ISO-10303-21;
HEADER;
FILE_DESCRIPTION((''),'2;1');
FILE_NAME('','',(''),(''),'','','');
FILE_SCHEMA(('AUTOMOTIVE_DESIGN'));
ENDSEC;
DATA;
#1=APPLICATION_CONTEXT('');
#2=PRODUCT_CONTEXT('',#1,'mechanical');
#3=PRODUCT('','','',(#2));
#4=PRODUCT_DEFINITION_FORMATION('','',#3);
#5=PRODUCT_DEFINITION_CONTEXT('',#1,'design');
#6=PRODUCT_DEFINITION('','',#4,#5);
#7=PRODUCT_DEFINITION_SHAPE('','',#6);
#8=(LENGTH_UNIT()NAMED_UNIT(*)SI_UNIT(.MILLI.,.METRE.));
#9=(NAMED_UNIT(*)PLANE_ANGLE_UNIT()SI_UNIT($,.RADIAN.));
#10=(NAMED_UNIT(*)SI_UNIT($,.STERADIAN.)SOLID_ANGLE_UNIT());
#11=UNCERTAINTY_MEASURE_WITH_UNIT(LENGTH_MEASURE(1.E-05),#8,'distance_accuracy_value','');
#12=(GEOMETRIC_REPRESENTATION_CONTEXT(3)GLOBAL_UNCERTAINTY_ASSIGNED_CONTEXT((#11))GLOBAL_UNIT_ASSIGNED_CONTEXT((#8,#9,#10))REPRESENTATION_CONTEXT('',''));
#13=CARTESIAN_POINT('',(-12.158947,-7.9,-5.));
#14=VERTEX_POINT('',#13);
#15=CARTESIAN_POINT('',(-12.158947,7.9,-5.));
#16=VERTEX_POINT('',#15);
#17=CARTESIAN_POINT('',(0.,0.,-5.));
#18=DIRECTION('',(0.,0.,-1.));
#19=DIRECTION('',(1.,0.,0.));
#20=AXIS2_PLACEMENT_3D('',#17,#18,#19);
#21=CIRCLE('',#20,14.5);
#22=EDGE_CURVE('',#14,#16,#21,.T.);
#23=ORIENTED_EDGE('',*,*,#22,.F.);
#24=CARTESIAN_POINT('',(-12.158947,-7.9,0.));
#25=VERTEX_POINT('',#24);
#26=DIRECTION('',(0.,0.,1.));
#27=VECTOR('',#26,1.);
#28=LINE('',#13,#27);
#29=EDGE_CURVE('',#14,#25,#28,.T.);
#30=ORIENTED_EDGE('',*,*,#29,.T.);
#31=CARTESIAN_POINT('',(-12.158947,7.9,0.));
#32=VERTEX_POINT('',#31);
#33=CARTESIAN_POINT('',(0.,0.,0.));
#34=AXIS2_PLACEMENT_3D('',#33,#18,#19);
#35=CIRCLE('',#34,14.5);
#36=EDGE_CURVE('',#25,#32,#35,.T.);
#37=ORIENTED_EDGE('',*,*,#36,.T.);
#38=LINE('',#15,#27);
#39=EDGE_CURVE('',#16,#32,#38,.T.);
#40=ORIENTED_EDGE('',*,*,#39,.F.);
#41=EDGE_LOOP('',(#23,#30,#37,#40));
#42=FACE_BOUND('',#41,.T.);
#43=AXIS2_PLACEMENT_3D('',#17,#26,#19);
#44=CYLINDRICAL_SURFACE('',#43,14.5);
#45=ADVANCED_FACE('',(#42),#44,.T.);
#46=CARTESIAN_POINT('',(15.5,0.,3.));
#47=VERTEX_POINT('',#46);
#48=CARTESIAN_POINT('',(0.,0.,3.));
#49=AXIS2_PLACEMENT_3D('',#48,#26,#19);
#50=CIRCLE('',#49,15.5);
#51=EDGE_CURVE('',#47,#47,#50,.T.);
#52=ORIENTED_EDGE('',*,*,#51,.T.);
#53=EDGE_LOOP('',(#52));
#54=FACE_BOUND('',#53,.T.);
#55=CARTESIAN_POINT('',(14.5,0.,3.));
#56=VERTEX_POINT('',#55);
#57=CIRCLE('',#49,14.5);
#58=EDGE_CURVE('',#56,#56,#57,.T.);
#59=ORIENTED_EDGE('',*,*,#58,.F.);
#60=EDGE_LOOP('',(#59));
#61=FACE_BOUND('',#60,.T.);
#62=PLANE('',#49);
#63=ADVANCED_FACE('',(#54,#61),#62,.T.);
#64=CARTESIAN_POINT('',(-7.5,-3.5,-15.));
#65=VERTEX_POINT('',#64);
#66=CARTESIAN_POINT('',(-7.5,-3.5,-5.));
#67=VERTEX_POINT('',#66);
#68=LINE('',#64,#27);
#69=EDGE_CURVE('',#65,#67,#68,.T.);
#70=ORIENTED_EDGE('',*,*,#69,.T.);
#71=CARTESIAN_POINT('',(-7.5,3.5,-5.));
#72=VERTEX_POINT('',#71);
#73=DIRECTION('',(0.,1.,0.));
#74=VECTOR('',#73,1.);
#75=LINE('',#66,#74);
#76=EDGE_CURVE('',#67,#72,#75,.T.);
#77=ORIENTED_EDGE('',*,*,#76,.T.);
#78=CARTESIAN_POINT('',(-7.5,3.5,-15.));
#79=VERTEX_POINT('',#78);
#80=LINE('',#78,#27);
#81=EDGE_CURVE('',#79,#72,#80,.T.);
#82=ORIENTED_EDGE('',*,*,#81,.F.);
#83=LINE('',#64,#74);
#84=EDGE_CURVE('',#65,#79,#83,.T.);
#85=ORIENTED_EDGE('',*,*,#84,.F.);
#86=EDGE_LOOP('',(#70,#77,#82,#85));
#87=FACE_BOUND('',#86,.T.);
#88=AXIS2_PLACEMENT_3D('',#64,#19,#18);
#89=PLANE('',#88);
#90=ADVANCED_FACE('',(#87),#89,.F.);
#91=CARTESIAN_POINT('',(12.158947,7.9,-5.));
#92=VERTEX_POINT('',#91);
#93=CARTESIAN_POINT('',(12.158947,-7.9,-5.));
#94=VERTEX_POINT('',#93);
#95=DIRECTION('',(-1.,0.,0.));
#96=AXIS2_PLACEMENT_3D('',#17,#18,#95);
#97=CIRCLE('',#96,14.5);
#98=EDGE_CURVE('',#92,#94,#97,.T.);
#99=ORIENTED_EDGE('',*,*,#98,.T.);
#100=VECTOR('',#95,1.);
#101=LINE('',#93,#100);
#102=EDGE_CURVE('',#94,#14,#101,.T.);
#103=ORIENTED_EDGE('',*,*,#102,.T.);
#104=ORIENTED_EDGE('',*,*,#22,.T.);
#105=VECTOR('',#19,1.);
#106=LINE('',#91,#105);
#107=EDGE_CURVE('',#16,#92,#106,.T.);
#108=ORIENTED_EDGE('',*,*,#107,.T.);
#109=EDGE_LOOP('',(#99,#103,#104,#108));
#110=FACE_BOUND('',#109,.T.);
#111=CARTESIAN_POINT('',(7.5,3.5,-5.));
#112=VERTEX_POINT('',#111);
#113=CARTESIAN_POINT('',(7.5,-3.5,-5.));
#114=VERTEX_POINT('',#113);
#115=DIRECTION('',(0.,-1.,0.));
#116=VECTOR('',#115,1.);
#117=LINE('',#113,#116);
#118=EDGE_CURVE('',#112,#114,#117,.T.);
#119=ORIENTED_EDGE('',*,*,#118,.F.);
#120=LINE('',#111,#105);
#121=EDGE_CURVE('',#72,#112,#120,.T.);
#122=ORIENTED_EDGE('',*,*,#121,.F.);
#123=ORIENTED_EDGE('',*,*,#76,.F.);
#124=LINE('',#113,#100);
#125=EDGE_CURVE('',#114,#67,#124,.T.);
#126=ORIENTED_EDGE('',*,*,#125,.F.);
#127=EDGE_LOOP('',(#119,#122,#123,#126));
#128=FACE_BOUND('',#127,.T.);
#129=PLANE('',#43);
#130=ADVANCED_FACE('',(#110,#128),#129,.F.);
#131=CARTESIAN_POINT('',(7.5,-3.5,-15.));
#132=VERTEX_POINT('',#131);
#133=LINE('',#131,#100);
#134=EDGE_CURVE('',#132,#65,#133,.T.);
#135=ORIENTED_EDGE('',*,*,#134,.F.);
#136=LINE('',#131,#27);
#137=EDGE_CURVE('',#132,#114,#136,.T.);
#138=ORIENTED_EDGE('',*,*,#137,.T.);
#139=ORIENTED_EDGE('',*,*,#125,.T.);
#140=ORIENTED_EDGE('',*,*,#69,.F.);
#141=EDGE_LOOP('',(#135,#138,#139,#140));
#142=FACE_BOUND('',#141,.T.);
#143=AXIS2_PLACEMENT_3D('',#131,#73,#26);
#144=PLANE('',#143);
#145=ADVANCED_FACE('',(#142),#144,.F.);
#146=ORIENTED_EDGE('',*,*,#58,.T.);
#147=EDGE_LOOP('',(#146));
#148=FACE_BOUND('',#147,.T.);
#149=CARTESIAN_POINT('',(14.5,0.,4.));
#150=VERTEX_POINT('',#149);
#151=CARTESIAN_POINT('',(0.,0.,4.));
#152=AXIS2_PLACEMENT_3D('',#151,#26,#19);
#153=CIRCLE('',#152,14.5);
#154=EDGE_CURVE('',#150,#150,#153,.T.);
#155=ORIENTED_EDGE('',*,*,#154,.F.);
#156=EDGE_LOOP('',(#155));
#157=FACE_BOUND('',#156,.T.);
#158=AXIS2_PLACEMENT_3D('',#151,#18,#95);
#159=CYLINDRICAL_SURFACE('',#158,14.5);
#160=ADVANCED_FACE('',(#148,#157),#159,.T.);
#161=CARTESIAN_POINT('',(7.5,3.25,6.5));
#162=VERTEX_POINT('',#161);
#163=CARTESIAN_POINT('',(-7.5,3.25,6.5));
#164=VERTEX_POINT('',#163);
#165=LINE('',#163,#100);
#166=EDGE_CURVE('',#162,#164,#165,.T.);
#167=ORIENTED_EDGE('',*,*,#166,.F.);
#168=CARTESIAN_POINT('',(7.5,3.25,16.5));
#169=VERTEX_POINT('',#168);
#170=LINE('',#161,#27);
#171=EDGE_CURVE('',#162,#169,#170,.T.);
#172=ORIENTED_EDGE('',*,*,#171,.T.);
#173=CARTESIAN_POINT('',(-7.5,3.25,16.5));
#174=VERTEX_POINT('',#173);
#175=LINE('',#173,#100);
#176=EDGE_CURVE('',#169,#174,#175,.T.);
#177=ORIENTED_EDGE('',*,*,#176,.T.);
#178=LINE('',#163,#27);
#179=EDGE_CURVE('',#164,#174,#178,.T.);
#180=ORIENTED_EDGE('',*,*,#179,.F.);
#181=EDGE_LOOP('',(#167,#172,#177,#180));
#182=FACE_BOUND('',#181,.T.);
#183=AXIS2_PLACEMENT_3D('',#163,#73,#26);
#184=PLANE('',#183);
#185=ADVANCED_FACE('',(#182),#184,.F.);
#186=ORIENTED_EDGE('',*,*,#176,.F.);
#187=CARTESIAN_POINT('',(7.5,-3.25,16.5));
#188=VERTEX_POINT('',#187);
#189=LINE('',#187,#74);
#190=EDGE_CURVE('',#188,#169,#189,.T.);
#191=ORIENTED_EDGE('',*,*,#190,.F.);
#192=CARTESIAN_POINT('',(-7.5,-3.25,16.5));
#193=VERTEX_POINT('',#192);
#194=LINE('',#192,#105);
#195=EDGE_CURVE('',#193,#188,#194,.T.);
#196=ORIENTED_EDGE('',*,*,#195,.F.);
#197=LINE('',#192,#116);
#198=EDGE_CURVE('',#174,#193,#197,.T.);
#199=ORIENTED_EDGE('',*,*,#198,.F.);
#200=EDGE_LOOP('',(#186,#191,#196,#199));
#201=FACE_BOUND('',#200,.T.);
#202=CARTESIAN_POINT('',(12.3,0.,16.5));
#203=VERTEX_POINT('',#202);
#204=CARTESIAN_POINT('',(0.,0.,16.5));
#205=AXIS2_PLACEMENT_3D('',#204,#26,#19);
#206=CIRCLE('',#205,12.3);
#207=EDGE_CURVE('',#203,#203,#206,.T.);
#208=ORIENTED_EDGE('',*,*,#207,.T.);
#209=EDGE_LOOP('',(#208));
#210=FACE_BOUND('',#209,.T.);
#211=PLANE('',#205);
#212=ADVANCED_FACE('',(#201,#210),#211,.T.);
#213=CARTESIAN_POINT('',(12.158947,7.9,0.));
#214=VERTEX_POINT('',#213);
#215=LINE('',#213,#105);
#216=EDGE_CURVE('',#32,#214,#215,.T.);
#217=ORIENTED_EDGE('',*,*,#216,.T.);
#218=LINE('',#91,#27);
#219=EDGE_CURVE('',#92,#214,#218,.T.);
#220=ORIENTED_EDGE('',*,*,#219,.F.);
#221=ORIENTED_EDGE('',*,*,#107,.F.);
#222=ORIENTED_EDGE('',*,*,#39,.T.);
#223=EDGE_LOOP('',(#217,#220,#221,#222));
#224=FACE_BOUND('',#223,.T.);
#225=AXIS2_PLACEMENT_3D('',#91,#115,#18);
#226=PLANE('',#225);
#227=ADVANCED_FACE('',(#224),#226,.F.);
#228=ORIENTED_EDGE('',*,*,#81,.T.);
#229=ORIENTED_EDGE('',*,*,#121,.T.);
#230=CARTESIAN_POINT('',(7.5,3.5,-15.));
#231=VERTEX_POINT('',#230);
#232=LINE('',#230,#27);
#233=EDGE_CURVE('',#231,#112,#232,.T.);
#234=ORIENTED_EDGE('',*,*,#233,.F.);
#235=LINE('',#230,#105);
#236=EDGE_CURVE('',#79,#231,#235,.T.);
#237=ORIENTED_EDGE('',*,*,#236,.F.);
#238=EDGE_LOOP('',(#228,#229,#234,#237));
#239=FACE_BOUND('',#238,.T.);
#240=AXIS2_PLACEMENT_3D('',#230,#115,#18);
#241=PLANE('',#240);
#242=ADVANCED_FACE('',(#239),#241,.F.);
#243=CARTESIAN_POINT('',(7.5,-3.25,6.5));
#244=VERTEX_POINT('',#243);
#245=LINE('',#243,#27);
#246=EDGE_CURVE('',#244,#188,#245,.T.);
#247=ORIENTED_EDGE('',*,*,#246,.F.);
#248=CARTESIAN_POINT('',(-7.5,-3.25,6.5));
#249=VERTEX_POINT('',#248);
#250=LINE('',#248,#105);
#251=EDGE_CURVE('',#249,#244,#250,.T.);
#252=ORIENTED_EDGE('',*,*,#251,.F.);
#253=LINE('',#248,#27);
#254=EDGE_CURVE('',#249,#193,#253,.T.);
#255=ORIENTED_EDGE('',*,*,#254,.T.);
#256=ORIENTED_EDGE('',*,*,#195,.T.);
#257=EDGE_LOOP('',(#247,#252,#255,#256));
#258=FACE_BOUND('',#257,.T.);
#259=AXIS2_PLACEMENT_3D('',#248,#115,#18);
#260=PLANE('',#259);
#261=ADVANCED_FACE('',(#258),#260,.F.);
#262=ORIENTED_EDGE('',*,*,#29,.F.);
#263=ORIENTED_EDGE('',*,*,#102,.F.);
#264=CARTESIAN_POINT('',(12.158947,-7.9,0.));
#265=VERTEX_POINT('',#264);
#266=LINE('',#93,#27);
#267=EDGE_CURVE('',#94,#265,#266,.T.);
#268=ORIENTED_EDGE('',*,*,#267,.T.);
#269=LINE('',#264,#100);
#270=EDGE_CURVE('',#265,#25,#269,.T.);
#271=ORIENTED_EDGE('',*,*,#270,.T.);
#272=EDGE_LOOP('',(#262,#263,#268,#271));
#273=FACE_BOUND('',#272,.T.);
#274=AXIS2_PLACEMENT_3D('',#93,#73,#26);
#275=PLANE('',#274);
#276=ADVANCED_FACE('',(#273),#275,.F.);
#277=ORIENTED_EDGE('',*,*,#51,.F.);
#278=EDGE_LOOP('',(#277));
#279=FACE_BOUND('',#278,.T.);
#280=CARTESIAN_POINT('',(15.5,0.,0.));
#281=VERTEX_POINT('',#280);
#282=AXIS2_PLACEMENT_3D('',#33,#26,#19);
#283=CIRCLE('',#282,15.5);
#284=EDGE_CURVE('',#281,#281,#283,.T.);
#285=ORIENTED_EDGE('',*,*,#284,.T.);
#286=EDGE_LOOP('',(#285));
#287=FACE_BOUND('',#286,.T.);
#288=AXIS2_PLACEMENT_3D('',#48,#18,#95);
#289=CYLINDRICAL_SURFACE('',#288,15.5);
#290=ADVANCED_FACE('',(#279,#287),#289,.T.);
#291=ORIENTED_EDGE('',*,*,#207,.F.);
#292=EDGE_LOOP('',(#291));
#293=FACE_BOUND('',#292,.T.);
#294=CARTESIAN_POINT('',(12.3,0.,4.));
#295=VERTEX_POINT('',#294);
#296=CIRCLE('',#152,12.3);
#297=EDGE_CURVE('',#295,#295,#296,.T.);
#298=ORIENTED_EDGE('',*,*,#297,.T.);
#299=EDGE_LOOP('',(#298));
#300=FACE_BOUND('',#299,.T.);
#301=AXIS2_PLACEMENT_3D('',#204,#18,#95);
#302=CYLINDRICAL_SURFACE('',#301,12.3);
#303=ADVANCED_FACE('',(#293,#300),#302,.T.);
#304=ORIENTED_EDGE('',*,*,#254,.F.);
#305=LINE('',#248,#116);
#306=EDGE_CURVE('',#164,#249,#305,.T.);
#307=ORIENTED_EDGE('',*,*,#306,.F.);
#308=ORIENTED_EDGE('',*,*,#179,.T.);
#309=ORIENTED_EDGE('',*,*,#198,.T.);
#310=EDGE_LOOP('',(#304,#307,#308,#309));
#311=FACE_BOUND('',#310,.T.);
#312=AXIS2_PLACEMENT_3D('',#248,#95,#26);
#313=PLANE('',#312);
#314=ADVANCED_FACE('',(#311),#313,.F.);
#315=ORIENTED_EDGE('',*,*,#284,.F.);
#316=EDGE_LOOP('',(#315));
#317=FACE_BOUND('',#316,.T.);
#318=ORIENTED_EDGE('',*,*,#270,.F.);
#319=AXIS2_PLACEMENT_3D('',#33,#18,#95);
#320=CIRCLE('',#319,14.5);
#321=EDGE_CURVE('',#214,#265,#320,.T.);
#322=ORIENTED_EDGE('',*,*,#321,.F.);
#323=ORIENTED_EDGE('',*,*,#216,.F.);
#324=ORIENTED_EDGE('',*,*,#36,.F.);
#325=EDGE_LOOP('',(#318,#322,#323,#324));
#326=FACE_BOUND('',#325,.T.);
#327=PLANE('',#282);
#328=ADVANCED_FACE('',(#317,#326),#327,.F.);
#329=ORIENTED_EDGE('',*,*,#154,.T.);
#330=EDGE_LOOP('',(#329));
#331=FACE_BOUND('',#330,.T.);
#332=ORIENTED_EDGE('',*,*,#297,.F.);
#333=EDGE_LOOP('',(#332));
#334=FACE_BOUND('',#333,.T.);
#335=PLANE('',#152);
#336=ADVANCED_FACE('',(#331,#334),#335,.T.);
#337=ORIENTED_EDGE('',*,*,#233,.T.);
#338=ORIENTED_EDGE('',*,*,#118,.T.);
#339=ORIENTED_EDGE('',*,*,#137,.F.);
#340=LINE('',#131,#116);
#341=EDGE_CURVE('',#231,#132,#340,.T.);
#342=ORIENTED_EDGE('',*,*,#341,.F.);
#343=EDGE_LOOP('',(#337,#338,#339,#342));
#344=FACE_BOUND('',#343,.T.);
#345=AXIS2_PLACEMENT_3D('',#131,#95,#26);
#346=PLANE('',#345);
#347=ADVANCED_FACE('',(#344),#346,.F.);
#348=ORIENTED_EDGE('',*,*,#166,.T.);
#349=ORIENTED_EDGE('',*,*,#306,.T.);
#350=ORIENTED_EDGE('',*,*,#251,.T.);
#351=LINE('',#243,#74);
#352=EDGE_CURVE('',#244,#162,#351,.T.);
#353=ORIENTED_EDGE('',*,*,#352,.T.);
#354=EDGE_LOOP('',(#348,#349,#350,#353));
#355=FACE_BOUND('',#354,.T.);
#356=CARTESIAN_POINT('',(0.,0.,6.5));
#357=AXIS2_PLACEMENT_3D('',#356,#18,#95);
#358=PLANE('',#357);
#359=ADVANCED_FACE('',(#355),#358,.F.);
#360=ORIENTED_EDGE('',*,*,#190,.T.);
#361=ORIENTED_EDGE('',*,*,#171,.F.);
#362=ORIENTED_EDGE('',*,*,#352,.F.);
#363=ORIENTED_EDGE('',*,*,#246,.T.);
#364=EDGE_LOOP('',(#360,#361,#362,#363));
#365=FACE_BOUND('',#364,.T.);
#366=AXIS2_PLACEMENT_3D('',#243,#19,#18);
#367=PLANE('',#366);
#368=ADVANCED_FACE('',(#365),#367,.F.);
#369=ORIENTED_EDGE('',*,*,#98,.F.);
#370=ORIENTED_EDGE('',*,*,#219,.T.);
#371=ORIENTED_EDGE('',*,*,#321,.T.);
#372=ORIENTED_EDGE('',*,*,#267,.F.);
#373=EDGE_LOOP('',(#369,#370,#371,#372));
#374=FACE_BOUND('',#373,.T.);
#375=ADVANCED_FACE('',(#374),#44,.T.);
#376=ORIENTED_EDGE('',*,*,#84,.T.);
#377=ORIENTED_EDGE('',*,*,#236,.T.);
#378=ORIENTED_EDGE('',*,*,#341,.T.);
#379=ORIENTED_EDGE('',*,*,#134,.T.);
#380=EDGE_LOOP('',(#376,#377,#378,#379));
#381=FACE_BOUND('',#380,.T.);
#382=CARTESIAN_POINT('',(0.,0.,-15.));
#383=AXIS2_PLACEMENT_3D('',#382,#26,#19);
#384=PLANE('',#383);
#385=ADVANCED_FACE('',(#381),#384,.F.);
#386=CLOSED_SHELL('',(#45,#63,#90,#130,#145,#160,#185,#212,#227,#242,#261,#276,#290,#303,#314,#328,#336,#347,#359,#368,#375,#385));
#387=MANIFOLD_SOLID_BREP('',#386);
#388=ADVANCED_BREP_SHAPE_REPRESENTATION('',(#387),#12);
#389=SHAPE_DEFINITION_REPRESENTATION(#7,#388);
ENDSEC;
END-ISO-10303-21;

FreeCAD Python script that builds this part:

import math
import FreeCAD as App
import Part
import Sketcher

doc = App.newDocument("Part")
body = doc.addObject("PartDesign::Body", "Body")

# Sketch on XY plane
sketch1 = body.newObject("Sketcher::SketchObject", "Sketch")
sketch1.AttachmentSupport = (doc.getObject("XY_Plane"), [""])
sketch1.MapMode = "FlatFace"
sketch1.addGeometry(Part.Circle(App.Vector(0, 0, 0), App.Vector(0, 0, 1), 16), False)
sketch1.addConstraint(Sketcher.Constraint("Coincident", 0, 3, -1, 1))
sketch1.addConstraint(Sketcher.Constraint("Diameter", 0, 31.0))
pad1 = body.newObject("PartDesign::Pad", "Pad")
pad1.Profile = sketch1
pad1.Length = 3

# Sketch on XY plane
sketch2 = body.newObject("Sketcher::SketchObject", "Sketch001")
sketch2.AttachmentSupport = (doc.getObject("XY_Plane"), [""])
sketch2.MapMode = "FlatFace"
sketch2.AttachmentOffset = App.Placement(App.Vector(0, 0, 3), App.Rotation())
sketch2.addGeometry(Part.Circle(App.Vector(0, 0, 0), App.Vector(0, 0, 1), 14), False)
sketch2.addConstraint(Sketcher.Constraint("Coincident", 0, 3, -1, 1))
sketch2.addConstraint(Sketcher.Constraint("Diameter", 0, 29.0))
pad2 = body.newObject("PartDesign::Pad", "Pad001")
pad2.Profile = sketch2
pad2.Length = 1

# Sketch on XY plane
sketch3 = body.newObject("Sketcher::SketchObject", "Sketch002")
sketch3.AttachmentSupport = (doc.getObject("XY_Plane"), [""])
sketch3.MapMode = "FlatFace"
sketch3.AttachmentOffset = App.Placement(App.Vector(0, 0, 4), App.Rotation())
sketch3.addGeometry(Part.Circle(App.Vector(0, 0, 0), App.Vector(0, 0, 1), 12), False)
sketch3.addConstraint(Sketcher.Constraint("Coincident", 0, 3, -1, 1))
sketch3.addConstraint(Sketcher.Constraint("Diameter", 0, 24.6))
pad3 = body.newObject("PartDesign::Pad", "Pad002")
pad3.Profile = sketch3
pad3.Length = 12.5

# Sketch on XY plane
sketch4 = body.newObject("Sketcher::SketchObject", "Sketch003")
sketch4.AttachmentSupport = (doc.getObject("XY_Plane"), [""])
sketch4.MapMode = "FlatFace"
sketch4.AttachmentOffset = App.Placement(App.Vector(0, 0, 16.5), App.Rotation())
sketch4.addGeometry(Part.LineSegment(App.Vector(-8, 3, 0), App.Vector(-8, -3, 0)), False)
sketch4.addGeometry(Part.LineSegment(App.Vector(-8, -3, 0), App.Vector(8, -3, 0)), False)
sketch4.addGeometry(Part.LineSegment(App.Vector(8, -3, 0), App.Vector(8, 3, 0)), False)
sketch4.addGeometry(Part.LineSegment(App.Vector(8, 3, 0), App.Vector(-8, 3, 0)), False)
sketch4.addConstraint(Sketcher.Constraint("Coincident", 0, 2, 1, 1))
sketch4.addConstraint(Sketcher.Constraint("Coincident", 1, 2, 2, 1))
sketch4.addConstraint(Sketcher.Constraint("Coincident", 2, 2, 3, 1))
sketch4.addConstraint(Sketcher.Constraint("Coincident", 3, 2, 0, 1))
sketch4.addConstraint(Sketcher.Constraint("Vertical", 0))
sketch4.addConstraint(Sketcher.Constraint("Horizontal", 1))
sketch4.addConstraint(Sketcher.Constraint("Vertical", 2))
sketch4.addConstraint(Sketcher.Constraint("Horizontal", 3))
sketch4.addConstraint(Sketcher.Constraint("Symmetric", 0, 2, 2, 2, -1, 1))
sketch4.addConstraint(Sketcher.Constraint("DistanceX", 1, 1, 1, 2, 15.0))
sketch4.addConstraint(Sketcher.Constraint("DistanceY", 0, 2, 0, 1, 6.5))
pocket1 = body.newObject("PartDesign::Pocket", "Pocket")
pocket1.Profile = sketch4
pocket1.Length = 10

# Sketch on XY plane
sketch5 = body.newObject("Sketcher::SketchObject", "Sketch004")
sketch5.AttachmentSupport = (doc.getObject("XY_Plane"), [""])
sketch5.MapMode = "FlatFace"
sketch5.AttachmentOffset = App.Placement(App.Vector(0, 0, -5), App.Rotation())
sketch5.addGeometry(Part.LineSegment(App.Vector(12, -8, 0), App.Vector(-12, -8, 0)), False)
sketch5.addGeometry(Part.ArcOfCircle(Part.Circle(App.Vector(0, 0, 0), App.Vector(0, 0, 1), 15), math.radians(147), math.radians(213)), False)
sketch5.addGeometry(Part.LineSegment(App.Vector(-12, 8, 0), App.Vector(12, 8, 0)), False)
sketch5.addGeometry(Part.ArcOfCircle(Part.Circle(App.Vector(0, 0, 0), App.Vector(0, 0, 1), 15), math.radians(-33), math.radians(33)), False)
sketch5.addConstraint(Sketcher.Constraint("Coincident", 0, 2, 1, 2))
sketch5.addConstraint(Sketcher.Constraint("Coincident", 1, 1, 2, 1))
sketch5.addConstraint(Sketcher.Constraint("Coincident", 2, 2, 3, 2))
sketch5.addConstraint(Sketcher.Constraint("Coincident", 3, 1, 0, 1))
sketch5.addConstraint(Sketcher.Constraint("Horizontal", 0))
sketch5.addConstraint(Sketcher.Constraint("Horizontal", 2))
sketch5.addConstraint(Sketcher.Constraint("Coincident", 1, 3, -1, 1))
sketch5.addConstraint(Sketcher.Constraint("Coincident", 3, 3, -1, 1))
sketch5.addConstraint(Sketcher.Constraint("Equal", 1, 3))
sketch5.addConstraint(Sketcher.Constraint("Vertical", 0, 2, 1, 1))
sketch5.addConstraint(Sketcher.Constraint("Radius", 1, 14.5))
sketch5.addConstraint(Sketcher.Constraint("DistanceY", 0, 2, -1, 1, 7.9))
pad4 = body.newObject("PartDesign::Pad", "Pad003")
pad4.Profile = sketch5
pad4.Length = 5

# Sketch on XY plane
sketch6 = body.newObject("Sketcher::SketchObject", "Sketch005")
sketch6.AttachmentSupport = (doc.getObject("XY_Plane"), [""])
sketch6.MapMode = "FlatFace"
sketch6.AttachmentOffset = App.Placement(App.Vector(0, 0, -5), App.Rotation())
sketch6.addGeometry(Part.LineSegment(App.Vector(8, 4, 0), App.Vector(8, -4, 0)), False)
sketch6.addGeometry(Part.LineSegment(App.Vector(8, -4, 0), App.Vector(-8, -4, 0)), False)
sketch6.addGeometry(Part.LineSegment(App.Vector(-8, -4, 0), App.Vector(-8, 4, 0)), False)
sketch6.addGeometry(Part.LineSegment(App.Vector(-8, 4, 0), App.Vector(8, 4, 0)), False)
sketch6.addConstraint(Sketcher.Constraint("Coincident", 0, 2, 1, 1))
sketch6.addConstraint(Sketcher.Constraint("Coincident", 1, 2, 2, 1))
sketch6.addConstraint(Sketcher.Constraint("Coincident", 2, 2, 3, 1))
sketch6.addConstraint(Sketcher.Constraint("Coincident", 3, 2, 0, 1))
sketch6.addConstraint(Sketcher.Constraint("Vertical", 0))
sketch6.addConstraint(Sketcher.Constraint("Horizontal", 1))
sketch6.addConstraint(Sketcher.Constraint("Vertical", 2))
sketch6.addConstraint(Sketcher.Constraint("Horizontal", 3))
sketch6.addConstraint(Sketcher.Constraint("Symmetric", 0, 2, 2, 2, -1, 1))
sketch6.addConstraint(Sketcher.Constraint("DistanceX", 1, 2, 1, 1, 15.0))
sketch6.addConstraint(Sketcher.Constraint("DistanceY", 0, 2, 0, 1, 7.0))
pad5 = body.newObject("PartDesign::Pad", "Pad004")
pad5.Profile = sketch6
pad5.Length = 10
pad5.Reversed = True

doc.recompute()
